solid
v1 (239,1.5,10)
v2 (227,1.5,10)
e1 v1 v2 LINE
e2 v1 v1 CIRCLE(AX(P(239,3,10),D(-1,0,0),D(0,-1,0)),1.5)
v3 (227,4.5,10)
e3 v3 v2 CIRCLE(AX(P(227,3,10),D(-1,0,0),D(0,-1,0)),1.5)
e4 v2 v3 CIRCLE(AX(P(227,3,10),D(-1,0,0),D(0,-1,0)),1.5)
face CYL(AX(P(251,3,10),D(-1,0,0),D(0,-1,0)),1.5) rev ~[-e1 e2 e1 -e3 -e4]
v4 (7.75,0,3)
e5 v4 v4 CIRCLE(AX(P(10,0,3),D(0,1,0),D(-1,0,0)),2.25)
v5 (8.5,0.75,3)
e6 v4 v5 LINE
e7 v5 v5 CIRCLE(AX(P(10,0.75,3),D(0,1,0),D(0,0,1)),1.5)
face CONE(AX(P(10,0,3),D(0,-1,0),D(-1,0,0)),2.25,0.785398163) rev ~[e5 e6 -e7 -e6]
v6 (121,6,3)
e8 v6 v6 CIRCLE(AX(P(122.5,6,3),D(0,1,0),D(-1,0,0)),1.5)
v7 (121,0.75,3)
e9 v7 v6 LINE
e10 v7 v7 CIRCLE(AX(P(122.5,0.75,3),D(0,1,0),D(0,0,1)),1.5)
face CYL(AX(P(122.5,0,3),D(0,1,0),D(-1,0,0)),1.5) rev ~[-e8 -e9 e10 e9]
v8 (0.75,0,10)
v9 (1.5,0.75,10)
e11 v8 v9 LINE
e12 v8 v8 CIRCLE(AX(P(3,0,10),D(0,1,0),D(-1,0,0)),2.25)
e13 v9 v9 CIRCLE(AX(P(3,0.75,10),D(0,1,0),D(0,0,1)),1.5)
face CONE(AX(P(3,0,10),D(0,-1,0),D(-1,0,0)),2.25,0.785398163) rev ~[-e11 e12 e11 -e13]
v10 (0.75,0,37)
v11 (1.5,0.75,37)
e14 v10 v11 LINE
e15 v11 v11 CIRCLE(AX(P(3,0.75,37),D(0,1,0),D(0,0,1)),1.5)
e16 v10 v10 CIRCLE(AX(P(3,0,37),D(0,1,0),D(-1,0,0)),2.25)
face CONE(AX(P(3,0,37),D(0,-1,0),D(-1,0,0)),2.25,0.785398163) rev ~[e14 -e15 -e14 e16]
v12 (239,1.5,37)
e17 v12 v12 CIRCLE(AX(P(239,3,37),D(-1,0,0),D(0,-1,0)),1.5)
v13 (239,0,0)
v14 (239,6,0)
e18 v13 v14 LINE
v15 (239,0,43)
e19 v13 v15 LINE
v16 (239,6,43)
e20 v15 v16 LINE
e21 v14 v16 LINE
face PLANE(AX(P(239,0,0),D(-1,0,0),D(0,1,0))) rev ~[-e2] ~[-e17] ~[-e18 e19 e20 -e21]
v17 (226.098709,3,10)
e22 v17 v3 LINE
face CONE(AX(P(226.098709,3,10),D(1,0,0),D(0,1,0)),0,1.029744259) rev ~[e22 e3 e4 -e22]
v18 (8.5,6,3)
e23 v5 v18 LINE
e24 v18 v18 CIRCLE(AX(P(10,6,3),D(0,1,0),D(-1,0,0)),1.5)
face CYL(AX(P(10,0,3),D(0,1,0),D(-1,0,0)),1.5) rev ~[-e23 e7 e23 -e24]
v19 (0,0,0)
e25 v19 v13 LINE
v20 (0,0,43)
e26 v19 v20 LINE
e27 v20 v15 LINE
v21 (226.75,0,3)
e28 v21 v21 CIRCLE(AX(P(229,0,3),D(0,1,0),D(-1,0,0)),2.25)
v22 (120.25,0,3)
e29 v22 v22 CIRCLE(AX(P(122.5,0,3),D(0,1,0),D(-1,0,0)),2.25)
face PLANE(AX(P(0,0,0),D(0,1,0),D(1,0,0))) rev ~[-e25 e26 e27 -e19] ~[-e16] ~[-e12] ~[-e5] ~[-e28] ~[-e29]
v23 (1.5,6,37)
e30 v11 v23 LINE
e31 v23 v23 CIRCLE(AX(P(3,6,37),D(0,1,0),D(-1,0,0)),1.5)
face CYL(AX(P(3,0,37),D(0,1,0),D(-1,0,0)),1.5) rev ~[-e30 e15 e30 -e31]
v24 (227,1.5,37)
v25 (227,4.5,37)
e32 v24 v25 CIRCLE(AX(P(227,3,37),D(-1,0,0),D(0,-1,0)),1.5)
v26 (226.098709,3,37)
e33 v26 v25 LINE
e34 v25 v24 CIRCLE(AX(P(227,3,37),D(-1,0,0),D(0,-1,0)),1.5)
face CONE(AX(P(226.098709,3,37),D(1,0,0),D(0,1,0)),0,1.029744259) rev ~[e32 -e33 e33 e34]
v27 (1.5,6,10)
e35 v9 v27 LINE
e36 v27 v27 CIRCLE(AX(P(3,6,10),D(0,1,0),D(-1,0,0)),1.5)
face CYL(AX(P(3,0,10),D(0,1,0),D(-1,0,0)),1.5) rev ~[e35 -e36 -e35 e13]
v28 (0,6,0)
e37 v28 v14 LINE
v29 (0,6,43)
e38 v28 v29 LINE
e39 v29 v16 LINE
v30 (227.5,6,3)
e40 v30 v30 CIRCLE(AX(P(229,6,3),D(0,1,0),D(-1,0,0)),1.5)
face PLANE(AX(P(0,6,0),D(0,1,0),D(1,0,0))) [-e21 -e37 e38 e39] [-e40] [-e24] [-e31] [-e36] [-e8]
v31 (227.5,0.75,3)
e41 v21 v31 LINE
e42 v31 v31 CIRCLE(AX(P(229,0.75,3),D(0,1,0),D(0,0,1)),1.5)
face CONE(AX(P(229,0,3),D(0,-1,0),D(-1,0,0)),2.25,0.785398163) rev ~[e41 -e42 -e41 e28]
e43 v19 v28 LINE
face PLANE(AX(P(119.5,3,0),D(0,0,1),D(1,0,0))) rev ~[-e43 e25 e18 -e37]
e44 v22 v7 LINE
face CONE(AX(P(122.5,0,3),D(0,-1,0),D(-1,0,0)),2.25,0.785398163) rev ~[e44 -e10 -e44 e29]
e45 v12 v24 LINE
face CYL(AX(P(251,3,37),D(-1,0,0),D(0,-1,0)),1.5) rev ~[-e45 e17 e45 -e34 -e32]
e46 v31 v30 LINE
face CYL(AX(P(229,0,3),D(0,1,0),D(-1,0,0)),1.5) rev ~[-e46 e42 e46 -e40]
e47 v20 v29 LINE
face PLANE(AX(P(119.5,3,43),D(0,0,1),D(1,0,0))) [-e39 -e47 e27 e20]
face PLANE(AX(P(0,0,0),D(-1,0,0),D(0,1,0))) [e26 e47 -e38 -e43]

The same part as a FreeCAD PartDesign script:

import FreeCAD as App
import Part
import Sketcher
Q = App.Units.Quantity


def add_polygon(sketch, points):
    """Adds a closed chain of lines whose ends are joined by coincident constraints."""
    first, n = sketch.GeometryCount, len(points)
    for a, b in zip(points, points[1:] + points[:1]):
        sketch.addGeometry(Part.LineSegment(App.Vector(*a, 0), App.Vector(*b, 0)), False)
    for i in range(n):
        sketch.addConstraint(Sketcher.Constraint("Coincident", first + i, 2, first + (i + 1) % n, 1))

doc = App.newDocument("Part")
body = doc.addObject("PartDesign::Body", "Body")

# Sketch on XY plane
sketch1 = body.newObject("Sketcher::SketchObject", "Sketch")
sketch1.AttachmentSupport = (doc.getObject("XY_Plane"), [""])
sketch1.MapMode = "FlatFace"
add_polygon(sketch1, [(0, 6), (0, 0), (239, 0), (239, 6)])  # lines 0-3
sketch1.addConstraint(Sketcher.Constraint("Vertical", 0))
sketch1.addConstraint(Sketcher.Constraint("Horizontal", 1))
sketch1.addConstraint(Sketcher.Constraint("Vertical", 2))
sketch1.addConstraint(Sketcher.Constraint("Horizontal", 3))
sketch1.addConstraint(Sketcher.Constraint("Coincident", 0, 2, -1, 1))
sketch1.addConstraint(Sketcher.Constraint("DistanceX", 1, 1, 1, 2, Q("239 mm")))
sketch1.addConstraint(Sketcher.Constraint("DistanceY", 0, 2, 0, 1, Q("6 mm")))
pad1 = body.newObject("PartDesign::Pad", "Pad")
pad1.Profile = sketch1
pad1.Length = 43

# Sketch on YZ plane
sketch2 = body.newObject("Sketcher::SketchObject", "Sketch001")
sketch2.AttachmentSupport = (doc.getObject("YZ_Plane"), [""])
sketch2.MapMode = "FlatFace"
sketch2.AttachmentOffset = App.Placement(App.Vector(0, 0, 239), App.Rotation())
sketch2.addGeometry(Part.Circle(App.Vector(3, 37, 0), App.Vector(0, 0, 1), 1.5), False)
sketch2.addGeometry(Part.Circle(App.Vector(3, 10, 0), App.Vector(0, 0, 1), 1.5), False)
sketch2.addConstraint(Sketcher.Constraint("Equal", 0, 1))
sketch2.addConstraint(Sketcher.Constraint("Vertical", 0, 3, 1, 3))
sketch2.addConstraint(Sketcher.Constraint("Diameter", 0, Q("3 mm")))
sketch2.addConstraint(Sketcher.Constraint("DistanceX", -1, 1, 0, 3, Q("3 mm")))
sketch2.addConstraint(Sketcher.Constraint("DistanceY", -1, 1, 0, 3, Q("37 mm")))
sketch2.addConstraint(Sketcher.Constraint("DistanceY", -1, 1, 1, 3, Q("10 mm")))
doc.recompute()
hole = body.newObject("PartDesign::Hole", "Hole")
hole.Profile = sketch2
hole.ThreadType = "None"
hole.Diameter = 3
hole.DepthType = "Dimension"
hole.Depth = 12
hole.DrillPoint = "Angled"
hole.DrillPointAngle = 118

# Sketch on XZ plane
sketch3 = body.newObject("Sketcher::SketchObject", "Sketch002")
sketch3.AttachmentSupport = (doc.getObject("XZ_Plane"), [""])
sketch3.MapMode = "FlatFace"
sketch3.addGeometry(Part.Circle(App.Vector(3, 37, 0), App.Vector(0, 0, 1), 1.5), False)
sketch3.addGeometry(Part.Circle(App.Vector(3, 10, 0), App.Vector(0, 0, 1), 1.5), False)
sketch3.addConstraint(Sketcher.Constraint("Equal", 0, 1))
sketch3.addConstraint(Sketcher.Constraint("Vertical", 0, 3, 1, 3))
sketch3.addConstraint(Sketcher.Constraint("Diameter", 0, Q("3 mm")))
sketch3.addConstraint(Sketcher.Constraint("DistanceX", -1, 1, 0, 3, Q("3 mm")))
sketch3.addConstraint(Sketcher.Constraint("DistanceY", -1, 1, 0, 3, Q("37 mm")))
sketch3.addConstraint(Sketcher.Constraint("DistanceY", -1, 1, 1, 3, Q("10 mm")))
doc.recompute()
hole2 = body.newObject("PartDesign::Hole", "Hole001")
hole2.Profile = sketch3
hole2.ThreadType = "None"
hole2.Diameter = 3
hole2.DepthType = "Dimension"
hole2.Depth = 12
hole2.DrillPoint = "Angled"
hole2.DrillPointAngle = 118
hole2.HoleCutType = "Countersink"
hole2.HoleCutDiameter = 4.5
hole2.HoleCutCountersinkAngle = 90

# Sketch on XZ plane
sketch4 = body.newObject("Sketcher::SketchObject", "Sketch003")
sketch4.AttachmentSupport = (doc.getObject("XZ_Plane"), [""])
sketch4.MapMode = "FlatFace"
sketch4.addGeometry(Part.Circle(App.Vector(122.5, 3, 0), App.Vector(0, 0, 1), 1.5), False)
sketch4.addGeometry(Part.Circle(App.Vector(229, 3, 0), App.Vector(0, 0, 1), 1.5), False)
sketch4.addGeometry(Part.Circle(App.Vector(10, 3, 0), App.Vector(0, 0, 1), 1.5), False)
sketch4.addConstraint(Sketcher.Constraint("Equal", 0, 1))
sketch4.addConstraint(Sketcher.Constraint("Equal", 1, 2))
sketch4.addConstraint(Sketcher.Constraint("Horizontal", 0, 3, 1, 3))
sketch4.addConstraint(Sketcher.Constraint("Horizontal", 1, 3, 2, 3))
sketch4.addConstraint(Sketcher.Constraint("Diameter", 0, Q("3 mm")))
sketch4.addConstraint(Sketcher.Constraint("DistanceY", -1, 1, 0, 3, Q("3 mm")))
sketch4.addConstraint(Sketcher.Constraint("DistanceX", -1, 1, 1, 3, Q("229 mm")))
sketch4.addConstraint(Sketcher.Constraint("DistanceX", -1, 1, 2, 3, Q("10 mm")))
sketch4.addConstraint(Sketcher.Constraint("DistanceX", -1, 1, 0, 3, Q("122.5 mm")))
doc.recompute()
hole3 = body.newObject("PartDesign::Hole", "Hole002")
hole3.Profile = sketch4
hole3.ThreadType = "None"
hole3.Diameter = 3
hole3.DepthType = "ThroughAll"
hole3.HoleCutType = "Countersink"
hole3.HoleCutDiameter = 4.5
hole3.HoleCutCountersinkAngle = 90

doc.recompute()
